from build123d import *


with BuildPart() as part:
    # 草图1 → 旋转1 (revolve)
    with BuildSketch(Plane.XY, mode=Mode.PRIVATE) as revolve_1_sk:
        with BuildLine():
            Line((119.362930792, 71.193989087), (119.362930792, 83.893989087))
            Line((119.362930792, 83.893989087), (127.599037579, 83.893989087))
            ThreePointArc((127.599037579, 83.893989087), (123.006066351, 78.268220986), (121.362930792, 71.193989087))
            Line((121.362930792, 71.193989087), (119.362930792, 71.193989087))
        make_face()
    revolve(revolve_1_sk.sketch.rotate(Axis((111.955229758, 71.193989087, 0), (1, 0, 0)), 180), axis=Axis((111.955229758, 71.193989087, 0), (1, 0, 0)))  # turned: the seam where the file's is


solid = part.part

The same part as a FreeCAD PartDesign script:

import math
import FreeCAD as App
import Part
import Sketcher

doc = App.newDocument("Part")
params = doc.addObject("Spreadsheet::Sheet", "Params")
for row, (alias, value) in enumerate([
    ("sketch1_width", "2 mm"),
    ("sketch1_radius", "16.05 mm"),
    ("sketch1_height", "12.7 mm"),
    ("revolution_angle", "360 deg"),
], start=1):
    params.set(f"A{row}", alias)
    params.set(f"B{row}", "=" + value)
    params.setAlias(f"B{row}", alias)

body = doc.addObject("PartDesign::Body", "Body")

sketch1 = body.newObject("Sketcher::SketchObject", "Sketch")
sketch1.AttachmentSupport = (doc.getObject("XY_Plane"), [""])
sketch1.MapMode = "FlatFace"
sketch1.addGeometry(Part.LineSegment(App.Vector(119.4, 83.9, 0), App.Vector(119.4, 71.2, 0)), False)
sketch1.addGeometry(Part.LineSegment(App.Vector(119.4, 71.2, 0), App.Vector(121.4, 71.2, 0)), False)
sketch1.addGeometry(Part.ArcOfCircle(Part.Circle(App.Vector(137.4, 71.2, 0), App.Vector(0, 0, 1), 16.1), math.radians(128), math.radians(180)), False)
sketch1.addGeometry(Part.LineSegment(App.Vector(127.6, 83.9, 0), App.Vector(119.4, 83.9, 0)), False)
sketch1.addGeometry(Part.LineSegment(App.Vector(119.4, 71.2, 0), App.Vector(137.4, 71.2, 0)), True)
sketch1.addConstraint(Sketcher.Constraint("Coincident", 0, 2, 1, 1))
sketch1.addConstraint(Sketcher.Constraint("Coincident", 1, 2, 2, 2))
sketch1.addConstraint(Sketcher.Constraint("Coincident", 2, 1, 3, 1))
sketch1.addConstraint(Sketcher.Constraint("Coincident", 3, 2, 0, 1))
sketch1.addConstraint(Sketcher.Constraint("Vertical", 0))
sketch1.addConstraint(Sketcher.Constraint("Horizontal", 1))
sketch1.addConstraint(Sketcher.Constraint("Horizontal", 3))
sketch1.addConstraint(Sketcher.Constraint("Horizontal", 4))
sketch1.addConstraint(Sketcher.Constraint("Coincident", 4, 1, 0, 2))
sketch1.addConstraint(Sketcher.Constraint("Coincident", 4, 2, 2, 3))
sketch1.addConstraint(Sketcher.Constraint("DistanceX", 1, 1, 1, 2, 2.0))
sketch1.addConstraint(Sketcher.Constraint("Radius", 2, 16.05))
sketch1.addConstraint(Sketcher.Constraint("DistanceY", 0, 2, 0, 1, 12.7))
sketch1.addConstraint(Sketcher.Constraint("DistanceX", -1, 1, 2, 3, 137.412931))
sketch1.addConstraint(Sketcher.Constraint("DistanceY", -1, 1, 2, 3, 71.193989))
sketch1.setExpression("Constraints[10]", "Params.sketch1_width")
sketch1.setExpression("Constraints[11]", "Params.sketch1_radius")
sketch1.setExpression("Constraints[12]", "Params.sketch1_height")
revolution = body.newObject("PartDesign::Revolution", "Revolution")
revolution.Profile = sketch1
revolution.ReferenceAxis = (sketch1, ["Axis0"])
revolution.setExpression("Angle", "Params.revolution_angle")

doc.recompute()
